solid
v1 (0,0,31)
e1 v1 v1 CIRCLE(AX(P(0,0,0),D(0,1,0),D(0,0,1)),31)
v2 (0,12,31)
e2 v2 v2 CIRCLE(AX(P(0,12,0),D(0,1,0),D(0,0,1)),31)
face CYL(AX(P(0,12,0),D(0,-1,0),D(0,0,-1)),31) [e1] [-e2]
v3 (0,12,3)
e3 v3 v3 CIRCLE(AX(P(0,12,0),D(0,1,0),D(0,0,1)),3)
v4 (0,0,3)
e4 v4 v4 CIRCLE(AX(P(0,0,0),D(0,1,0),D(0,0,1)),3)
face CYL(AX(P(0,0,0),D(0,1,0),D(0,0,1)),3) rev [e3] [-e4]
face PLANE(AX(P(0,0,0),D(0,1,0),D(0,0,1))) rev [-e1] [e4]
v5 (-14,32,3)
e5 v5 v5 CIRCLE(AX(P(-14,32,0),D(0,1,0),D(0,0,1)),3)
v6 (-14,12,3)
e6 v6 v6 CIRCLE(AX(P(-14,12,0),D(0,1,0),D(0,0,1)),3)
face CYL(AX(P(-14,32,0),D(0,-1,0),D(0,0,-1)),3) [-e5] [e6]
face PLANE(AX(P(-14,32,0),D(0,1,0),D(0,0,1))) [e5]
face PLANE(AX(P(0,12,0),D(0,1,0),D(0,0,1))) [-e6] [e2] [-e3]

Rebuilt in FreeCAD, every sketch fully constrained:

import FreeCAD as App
import Part
import Sketcher

doc = App.newDocument("Part")
params = doc.addObject("Spreadsheet::Sheet", "Params")
for row, (alias, value) in enumerate([
    ("sketch1_diameter", "62 mm"),
    ("pad1_length", "12 mm"),
    ("sketch2_diameter", "6 mm"),
    ("sketch3_diameter", "6 mm"),
    ("pad2_length", "20 mm"),
], start=1):
    params.set(f"A{row}", alias)
    params.set(f"B{row}", "=" + value)
    params.setAlias(f"B{row}", alias)

body = doc.addObject("PartDesign::Body", "Body")

# Sketch on XZ plane
sketch1 = doc.addObject("Sketcher::SketchObject", "Sketch")
body.addObject(sketch1)
sketch1.AttachmentSupport = (doc.XZ_Plane, [""])
sketch1.MapMode = "FlatFace"
sketch1.addGeometry(Part.Circle(App.Vector(0, 0, 0), App.Vector(0, 0, 1), 31), False)
sketch1.addConstraint([
    Sketcher.Constraint("Coincident", 0, 3, -1, 1),
    Sketcher.Constraint("Diameter", 0, 62.0),
])
sketch1.setExpression("Constraints[1]", "Params.sketch1_diameter")
pad1 = doc.addObject("PartDesign::Pad", "Pad")
body.addObject(pad1)
pad1.Profile = sketch1
pad1.setExpression("Length", "Params.pad1_length")
pad1.Reversed = True

# Sketch on XZ plane
sketch2 = doc.addObject("Sketcher::SketchObject", "Sketch001")
body.addObject(sketch2)
sketch2.AttachmentSupport = (doc.XZ_Plane, [""])
sketch2.MapMode = "FlatFace"
sketch2.AttachmentOffset = App.Placement(App.Vector(0, 0, -12), App.Rotation())
sketch2.addGeometry(Part.Circle(App.Vector(0, 0, 0), App.Vector(0, 0, 1), 3), False)
sketch2.addConstraint([
    Sketcher.Constraint("Coincident", 0, 3, -1, 1),
    Sketcher.Constraint("Diameter", 0, 6.0),
])
sketch2.setExpression("Constraints[1]", "Params.sketch2_diameter")
pocket1 = doc.addObject("PartDesign::Pocket", "Pocket")
body.addObject(pocket1)
pocket1.Profile = sketch2
pocket1.Type = "ThroughAll"
pocket1.Reversed = True

# Sketch on XZ plane
sketch3 = doc.addObject("Sketcher::SketchObject", "Sketch002")
body.addObject(sketch3)
sketch3.AttachmentSupport = (doc.XZ_Plane, [""])
sketch3.MapMode = "FlatFace"
sketch3.AttachmentOffset = App.Placement(App.Vector(0, 0, -12), App.Rotation())
sketch3.addGeometry(Part.Circle(App.Vector(-14, 0, 0), App.Vector(0, 0, 1), 3), False)
sketch3.addConstraint([
    Sketcher.Constraint("PointOnObject", 0, 3, -1),
    Sketcher.Constraint("Diameter", 0, 6.0),
    Sketcher.Constraint("DistanceX", 0, 3, -1, 1, 14.0),
])
sketch3.setExpression("Constraints[1]", "Params.sketch3_diameter")
pad2 = doc.addObject("PartDesign::Pad", "Pad001")
body.addObject(pad2)
pad2.Profile = sketch3
pad2.setExpression("Length", "Params.pad2_length")
pad2.Reversed = True

doc.recompute()
